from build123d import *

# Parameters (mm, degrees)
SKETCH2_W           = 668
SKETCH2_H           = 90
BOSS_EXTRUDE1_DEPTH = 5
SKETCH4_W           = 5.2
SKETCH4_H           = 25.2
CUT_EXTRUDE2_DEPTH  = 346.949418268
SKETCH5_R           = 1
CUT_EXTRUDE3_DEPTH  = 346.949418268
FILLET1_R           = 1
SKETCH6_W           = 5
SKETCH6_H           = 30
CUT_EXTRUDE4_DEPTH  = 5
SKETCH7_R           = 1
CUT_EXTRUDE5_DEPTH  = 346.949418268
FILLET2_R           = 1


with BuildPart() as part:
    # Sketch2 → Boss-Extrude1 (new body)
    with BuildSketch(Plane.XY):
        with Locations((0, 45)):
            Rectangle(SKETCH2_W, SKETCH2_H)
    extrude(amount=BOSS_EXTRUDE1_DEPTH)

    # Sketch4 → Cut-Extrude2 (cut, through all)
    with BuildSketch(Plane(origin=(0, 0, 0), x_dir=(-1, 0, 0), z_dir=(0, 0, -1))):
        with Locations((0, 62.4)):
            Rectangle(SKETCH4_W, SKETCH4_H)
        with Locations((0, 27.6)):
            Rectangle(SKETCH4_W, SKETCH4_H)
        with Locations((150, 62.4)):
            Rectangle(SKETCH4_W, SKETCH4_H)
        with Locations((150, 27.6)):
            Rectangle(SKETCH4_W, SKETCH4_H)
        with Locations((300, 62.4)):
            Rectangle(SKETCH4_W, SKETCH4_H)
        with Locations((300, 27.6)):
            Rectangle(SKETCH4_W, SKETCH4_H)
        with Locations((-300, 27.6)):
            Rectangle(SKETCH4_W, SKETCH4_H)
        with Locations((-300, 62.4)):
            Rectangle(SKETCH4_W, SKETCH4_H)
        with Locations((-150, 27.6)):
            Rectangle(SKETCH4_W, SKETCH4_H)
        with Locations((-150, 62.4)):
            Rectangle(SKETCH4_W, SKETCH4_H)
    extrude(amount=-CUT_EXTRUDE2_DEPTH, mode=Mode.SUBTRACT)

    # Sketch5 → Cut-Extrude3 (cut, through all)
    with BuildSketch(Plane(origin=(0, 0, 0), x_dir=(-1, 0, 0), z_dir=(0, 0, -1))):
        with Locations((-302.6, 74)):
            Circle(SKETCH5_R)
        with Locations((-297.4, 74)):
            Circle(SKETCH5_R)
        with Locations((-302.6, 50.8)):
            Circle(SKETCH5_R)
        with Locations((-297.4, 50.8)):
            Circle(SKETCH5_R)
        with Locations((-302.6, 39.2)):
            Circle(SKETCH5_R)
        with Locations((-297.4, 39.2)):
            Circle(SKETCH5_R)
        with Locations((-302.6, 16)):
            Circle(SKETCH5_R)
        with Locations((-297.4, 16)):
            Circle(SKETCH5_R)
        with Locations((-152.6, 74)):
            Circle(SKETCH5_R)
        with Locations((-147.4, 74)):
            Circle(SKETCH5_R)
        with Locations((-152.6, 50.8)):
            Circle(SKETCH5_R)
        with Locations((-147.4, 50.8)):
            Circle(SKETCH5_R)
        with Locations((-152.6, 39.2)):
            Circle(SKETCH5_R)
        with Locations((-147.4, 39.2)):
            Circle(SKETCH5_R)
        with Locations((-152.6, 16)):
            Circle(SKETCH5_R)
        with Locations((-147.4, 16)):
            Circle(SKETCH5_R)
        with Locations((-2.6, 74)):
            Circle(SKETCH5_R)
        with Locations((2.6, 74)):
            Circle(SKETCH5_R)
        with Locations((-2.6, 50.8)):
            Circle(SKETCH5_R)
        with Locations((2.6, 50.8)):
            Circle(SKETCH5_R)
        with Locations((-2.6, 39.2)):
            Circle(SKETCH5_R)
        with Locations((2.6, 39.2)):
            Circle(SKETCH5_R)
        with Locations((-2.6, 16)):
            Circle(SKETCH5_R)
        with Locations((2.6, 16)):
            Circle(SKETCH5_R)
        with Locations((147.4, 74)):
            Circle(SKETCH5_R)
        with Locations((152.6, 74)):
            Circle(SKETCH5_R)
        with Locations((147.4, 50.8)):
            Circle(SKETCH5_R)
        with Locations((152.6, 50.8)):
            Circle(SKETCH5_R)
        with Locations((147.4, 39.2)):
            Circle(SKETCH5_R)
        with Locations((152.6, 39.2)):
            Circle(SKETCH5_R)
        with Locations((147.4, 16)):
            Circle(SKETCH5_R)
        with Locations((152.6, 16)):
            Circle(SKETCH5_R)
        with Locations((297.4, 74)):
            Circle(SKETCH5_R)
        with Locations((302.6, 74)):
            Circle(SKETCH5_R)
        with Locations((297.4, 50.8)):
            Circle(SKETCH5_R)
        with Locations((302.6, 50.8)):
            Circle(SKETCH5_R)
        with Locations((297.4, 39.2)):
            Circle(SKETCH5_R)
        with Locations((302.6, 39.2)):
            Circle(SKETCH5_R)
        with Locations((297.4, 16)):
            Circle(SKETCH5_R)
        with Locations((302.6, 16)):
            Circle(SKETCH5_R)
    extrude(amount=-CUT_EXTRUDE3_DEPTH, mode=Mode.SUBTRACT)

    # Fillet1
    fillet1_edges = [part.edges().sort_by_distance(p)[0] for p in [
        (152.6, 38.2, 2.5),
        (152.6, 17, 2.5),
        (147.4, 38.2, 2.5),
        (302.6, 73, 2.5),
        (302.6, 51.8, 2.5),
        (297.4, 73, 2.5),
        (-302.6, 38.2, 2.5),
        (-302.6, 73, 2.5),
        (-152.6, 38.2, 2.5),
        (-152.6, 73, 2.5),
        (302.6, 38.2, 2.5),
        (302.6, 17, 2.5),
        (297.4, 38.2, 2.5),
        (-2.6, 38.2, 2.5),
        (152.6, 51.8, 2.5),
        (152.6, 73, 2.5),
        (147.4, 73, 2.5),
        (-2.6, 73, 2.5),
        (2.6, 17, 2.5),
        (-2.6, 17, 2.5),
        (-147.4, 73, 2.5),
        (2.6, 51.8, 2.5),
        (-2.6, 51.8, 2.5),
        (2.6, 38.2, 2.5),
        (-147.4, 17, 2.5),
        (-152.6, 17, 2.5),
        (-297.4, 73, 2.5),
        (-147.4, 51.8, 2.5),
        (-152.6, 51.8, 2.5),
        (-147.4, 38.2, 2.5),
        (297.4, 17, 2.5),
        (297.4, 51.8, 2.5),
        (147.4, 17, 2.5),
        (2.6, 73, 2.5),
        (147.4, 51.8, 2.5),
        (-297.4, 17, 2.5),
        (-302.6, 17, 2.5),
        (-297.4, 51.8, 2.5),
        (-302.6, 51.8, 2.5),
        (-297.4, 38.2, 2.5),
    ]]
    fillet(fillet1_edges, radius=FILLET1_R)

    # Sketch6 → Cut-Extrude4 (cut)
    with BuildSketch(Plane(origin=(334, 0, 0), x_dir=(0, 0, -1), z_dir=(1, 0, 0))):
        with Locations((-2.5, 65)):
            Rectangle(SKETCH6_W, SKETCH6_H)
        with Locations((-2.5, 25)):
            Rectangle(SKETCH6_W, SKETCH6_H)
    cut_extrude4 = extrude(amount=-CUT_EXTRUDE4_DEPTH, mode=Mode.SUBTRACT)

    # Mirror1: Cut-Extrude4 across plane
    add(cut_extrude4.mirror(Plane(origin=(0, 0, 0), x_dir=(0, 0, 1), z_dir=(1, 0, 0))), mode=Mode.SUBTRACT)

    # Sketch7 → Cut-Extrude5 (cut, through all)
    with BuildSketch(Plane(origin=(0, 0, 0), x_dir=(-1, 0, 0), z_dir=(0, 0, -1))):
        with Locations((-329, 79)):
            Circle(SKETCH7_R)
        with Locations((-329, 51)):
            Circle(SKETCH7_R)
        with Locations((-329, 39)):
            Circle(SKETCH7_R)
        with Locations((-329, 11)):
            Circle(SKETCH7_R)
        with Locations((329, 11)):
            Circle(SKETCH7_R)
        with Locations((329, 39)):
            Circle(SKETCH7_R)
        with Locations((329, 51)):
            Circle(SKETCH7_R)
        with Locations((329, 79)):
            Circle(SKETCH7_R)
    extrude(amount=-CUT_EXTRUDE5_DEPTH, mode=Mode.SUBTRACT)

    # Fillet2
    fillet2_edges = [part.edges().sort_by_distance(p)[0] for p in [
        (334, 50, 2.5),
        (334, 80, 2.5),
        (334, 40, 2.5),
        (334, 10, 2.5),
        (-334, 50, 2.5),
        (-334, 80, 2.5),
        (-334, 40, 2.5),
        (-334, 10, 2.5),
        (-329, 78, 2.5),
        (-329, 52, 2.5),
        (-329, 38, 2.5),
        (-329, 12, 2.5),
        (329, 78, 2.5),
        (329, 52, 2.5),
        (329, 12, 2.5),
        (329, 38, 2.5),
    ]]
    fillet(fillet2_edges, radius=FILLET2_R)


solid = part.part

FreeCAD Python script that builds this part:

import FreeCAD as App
import Part
import Sketcher
from FreeCAD import Vector


def edges_at(feature, points):
    """Names of the edges that pass closest to the given points."""
    edges = feature.Shape.Edges
    near = lambda p: min(range(len(edges)), key=lambda i: edges[i].distToShape(Part.Vertex(*p))[0])
    return sorted({f"Edge{near(p) + 1}" for p in points})

doc = App.newDocument("Part")
body = doc.addObject("PartDesign::Body", "Body")

sketch1 = body.newObject("Sketcher::SketchObject", "Sketch")
sketch1.AttachmentSupport = (doc.getObject("XY_Plane"), [""])
sketch1.MapMode = "FlatFace"
sketch1.addGeometry([
    Part.LineSegment(Vector(-334, 90, 0), Vector(-334, 0, 0)),
    Part.LineSegment(Vector(-334, 0, 0), Vector(334, 0, 0)),
    Part.LineSegment(Vector(334, 0, 0), Vector(334, 90, 0)),
    Part.LineSegment(Vector(334, 90, 0), Vector(-334, 90, 0)),
], False)
sketch1.addConstraint([
    Sketcher.Constraint("Coincident", 0, 2, 1, 1),
    Sketcher.Constraint("Coincident", 1, 2, 2, 1),
    Sketcher.Constraint("Coincident", 2, 2, 3, 1),
    Sketcher.Constraint("Coincident", 3, 2, 0, 1),
    Sketcher.Constraint("Vertical", 0),
    Sketcher.Constraint("Horizontal", 1),
    Sketcher.Constraint("Vertical", 2),
    Sketcher.Constraint("Horizontal", 3),
    Sketcher.Constraint("Symmetric", 0, 2, 1, 2, -1, 1),
    Sketcher.Constraint("DistanceX", 1, 1, 1, 2, 668.0),
    Sketcher.Constraint("DistanceY", 0, 2, 0, 1, 90.0),
])
pad1 = body.newObject("PartDesign::Pad", "Pad")
pad1.Profile = sketch1
pad1.Length = 5

sketch2 = body.newObject("Sketcher::SketchObject", "Sketch001")
sketch2.AttachmentSupport = (doc.getObject("XY_Plane"), [""])
sketch2.MapMode = "FlatFace"
sketch2.addGeometry([
    Part.LineSegment(Vector(2.6, 75, 0), Vector(2.6, 49.8, 0)),
    Part.LineSegment(Vector(2.6, 49.8, 0), Vector(-2.6, 49.8, 0)),
    Part.LineSegment(Vector(-2.6, 49.8, 0), Vector(-2.6, 75, 0)),
    Part.LineSegment(Vector(-2.6, 75, 0), Vector(2.6, 75, 0)),
    Part.LineSegment(Vector(2.6, 40.2, 0), Vector(2.6, 15, 0)),
    Part.LineSegment(Vector(2.6, 15, 0), Vector(-2.6, 15, 0)),
    Part.LineSegment(Vector(-2.6, 15, 0), Vector(-2.6, 40.2, 0)),
    Part.LineSegment(Vector(-2.6, 40.2, 0), Vector(2.6, 40.2, 0)),
    Part.LineSegment(Vector(-147.4, 75, 0), Vector(-147.4, 49.8, 0)),
    Part.LineSegment(Vector(-147.4, 49.8, 0), Vector(-152.6, 49.8, 0)),
    Part.LineSegment(Vector(-152.6, 49.8, 0), Vector(-152.6, 75, 0)),
    Part.LineSegment(Vector(-152.6, 75, 0), Vector(-147.4, 75, 0)),
    Part.LineSegment(Vector(-147.4, 40.2, 0), Vector(-147.4, 15, 0)),
    Part.LineSegment(Vector(-147.4, 15, 0), Vector(-152.6, 15, 0)),
    Part.LineSegment(Vector(-152.6, 15, 0), Vector(-152.6, 40.2, 0)),
    Part.LineSegment(Vector(-152.6, 40.2, 0), Vector(-147.4, 40.2, 0)),
    Part.LineSegment(Vector(-297.4, 75, 0), Vector(-297.4, 49.8, 0)),
    Part.LineSegment(Vector(-297.4, 49.8, 0), Vector(-302.6, 49.8, 0)),
    Part.LineSegment(Vector(-302.6, 49.8, 0), Vector(-302.6, 75, 0)),
    Part.LineSegment(Vector(-302.6, 75, 0), Vector(-297.4, 75, 0)),
    Part.LineSegment(Vector(-297.4, 40.2, 0), Vector(-297.4, 15, 0)),
    Part.LineSegment(Vector(-297.4, 15, 0), Vector(-302.6, 15, 0)),
    Part.LineSegment(Vector(-302.6, 15, 0), Vector(-302.6, 40.2, 0)),
    Part.LineSegment(Vector(-302.6, 40.2, 0), Vector(-297.4, 40.2, 0)),
    Part.LineSegment(Vector(302.6, 40.2, 0), Vector(302.6, 15, 0)),
    Part.LineSegment(Vector(302.6, 15, 0), Vector(297.4, 15, 0)),
    Part.LineSegment(Vector(297.4, 15, 0), Vector(297.4, 40.2, 0)),
    Part.LineSegment(Vector(297.4, 40.2, 0), Vector(302.6, 40.2, 0)),
    Part.LineSegment(Vector(302.6, 75, 0), Vector(302.6, 49.8, 0)),
    Part.LineSegment(Vector(302.6, 49.8, 0), Vector(297.4, 49.8, 0)),
    Part.LineSegment(Vector(297.4, 49.8, 0), Vector(297.4, 75, 0)),
    Part.LineSegment(Vector(297.4, 75, 0), Vector(302.6, 75, 0)),
    Part.LineSegment(Vector(152.6, 40.2, 0), Vector(152.6, 15, 0)),
    Part.LineSegment(Vector(152.6, 15, 0), Vector(147.4, 15, 0)),
    Part.LineSegment(Vector(147.4, 15, 0), Vector(147.4, 40.2, 0)),
    Part.LineSegment(Vector(147.4, 40.2, 0), Vector(152.6, 40.2, 0)),
    Part.LineSegment(Vector(152.6, 75, 0), Vector(152.6, 49.8, 0)),
    Part.LineSegment(Vector(152.6, 49.8, 0), Vector(147.4, 49.8, 0)),
    Part.LineSegment(Vector(147.4, 49.8, 0), Vector(147.4, 75, 0)),
    Part.LineSegment(Vector(147.4, 75, 0), Vector(152.6, 75, 0)),
], False)
sketch2.addConstraint([
    Sketcher.Constraint("Coincident", 0, 2, 1, 1),
    Sketcher.Constraint("Coincident", 1, 2, 2, 1),
    Sketcher.Constraint("Coincident", 2, 2, 3, 1),
    Sketcher.Constraint("Coincident", 3, 2, 0, 1),
    Sketcher.Constraint("Coincident", 4, 2, 5, 1),
    Sketcher.Constraint("Coincident", 5, 2, 6, 1),
    Sketcher.Constraint("Coincident", 6, 2, 7, 1),
    Sketcher.Constraint("Coincident", 7, 2, 4, 1),
    Sketcher.Constraint("Coincident", 8, 2, 9, 1),
    Sketcher.Constraint("Coincident", 9, 2, 10, 1),
    Sketcher.Constraint("Coincident", 10, 2, 11, 1),
    Sketcher.Constraint("Coincident", 11, 2, 8, 1),
    Sketcher.Constraint("Coincident", 12, 2, 13, 1),
    Sketcher.Constraint("Coincident", 13, 2, 14, 1),
    Sketcher.Constraint("Coincident", 14, 2, 15, 1),
    Sketcher.Constraint("Coincident", 15, 2, 12, 1),
    Sketcher.Constraint("Coincident", 16, 2, 17, 1),
    Sketcher.Constraint("Coincident", 17, 2, 18, 1),
    Sketcher.Constraint("Coincident", 18, 2, 19, 1),
    Sketcher.Constraint("Coincident", 19, 2, 16, 1),
    Sketcher.Constraint("Coincident", 20, 2, 21, 1),
    Sketcher.Constraint("Coincident", 21, 2, 22, 1),
    Sketcher.Constraint("Coincident", 22, 2, 23, 1),
    Sketcher.Constraint("Coincident", 23, 2, 20, 1),
    Sketcher.Constraint("Coincident", 24, 2, 25, 1),
    Sketcher.Constraint("Coincident", 25, 2, 26, 1),
    Sketcher.Constraint("Coincident", 26, 2, 27, 1),
    Sketcher.Constraint("Coincident", 27, 2, 24, 1),
    Sketcher.Constraint("Coincident", 28, 2, 29, 1),
    Sketcher.Constraint("Coincident", 29, 2, 30, 1),
    Sketcher.Constraint("Coincident", 30, 2, 31, 1),
    Sketcher.Constraint("Coincident", 31, 2, 28, 1),
    Sketcher.Constraint("Coincident", 32, 2, 33, 1),
    Sketcher.Constraint("Coincident", 33, 2, 34, 1),
    Sketcher.Constraint("Coincident", 34, 2, 35, 1),
    Sketcher.Constraint("Coincident", 35, 2, 32, 1),
    Sketcher.Constraint("Coincident", 36, 2, 37, 1),
    Sketcher.Constraint("Coincident", 37, 2, 38, 1),
    Sketcher.Constraint("Coincident", 38, 2, 39, 1),
    Sketcher.Constraint("Coincident", 39, 2, 36, 1),
    Sketcher.Constraint("Vertical", 0),
    Sketcher.Constraint("Horizontal", 1),
    Sketcher.Constraint("Vertical", 2),
    Sketcher.Constraint("Horizontal", 3),
    Sketcher.Constraint("Vertical", 4),
    Sketcher.Constraint("Horizontal", 5),
    Sketcher.Constraint("Vertical", 6),
    Sketcher.Constraint("Horizontal", 7),
    Sketcher.Constraint("Vertical", 8),
    Sketcher.Constraint("Horizontal", 9),
    Sketcher.Constraint("Vertical", 10),
    Sketcher.Constraint("Horizontal", 11),
    Sketcher.Constraint("Vertical", 12),
    Sketcher.Constraint("Horizontal", 13),
    Sketcher.Constraint("Vertical", 14),
    Sketcher.Constraint("Horizontal", 15),
    Sketcher.Constraint("Vertical", 16),
    Sketcher.Constraint("Horizontal", 17),
    Sketcher.Constraint("Vertical", 18),
    Sketcher.Constraint("Horizontal", 19),
    Sketcher.Constraint("Vertical", 20),
    Sketcher.Constraint("Horizontal", 21),
    Sketcher.Constraint("Vertical", 22),
    Sketcher.Constraint("Horizontal", 23),
    Sketcher.Constraint("Vertical", 24),
    Sketcher.Constraint("Horizontal", 25),
    Sketcher.Constraint("Vertical", 26),
    Sketcher.Constraint("Horizontal", 27),
    Sketcher.Constraint("Vertical", 28),
    Sketcher.Constraint("Horizontal", 29),
    Sketcher.Constraint("Vertical", 30),
    Sketcher.Constraint("Horizontal", 31),
    Sketcher.Constraint("Vertical", 32),
    Sketcher.Constraint("Horizontal", 33),
    Sketcher.Constraint("Vertical", 34),
    Sketcher.Constraint("Horizontal", 35),
    Sketcher.Constraint("Vertical", 36),
    Sketcher.Constraint("Horizontal", 37),
    Sketcher.Constraint("Vertical", 38),
    Sketcher.Constraint("Horizontal", 39),
    Sketcher.Constraint("Symmetric", 21, 2, 24, 2, -2),
    Sketcher.Constraint("Symmetric", 23, 2, 26, 2, -2),
    Sketcher.Constraint("Symmetric", 17, 2, 28, 2, -2),
    Sketcher.Constraint("Symmetric", 19, 2, 30, 2, -2),
    Sketcher.Constraint("Symmetric", 13, 2, 32, 2, -2),
    Sketcher.Constraint("Symmetric", 15, 2, 34, 2, -2),
    Sketcher.Constraint("Symmetric", 9, 2, 36, 2, -2),
    Sketcher.Constraint("Symmetric", 11, 2, 38, 2, -2),
    Sketcher.Constraint("Horizontal", 1, 2, 8, 2),
    Sketcher.Constraint("Horizontal", 3, 2, 10, 2),
    Sketcher.Constraint("Horizontal", 5, 2, 12, 2),
    Sketcher.Constraint("Horizontal", 7, 2, 14, 2),
    Sketcher.Constraint("Horizontal", 9, 2, 16, 2),
    Sketcher.Constraint("Horizontal", 11, 2, 18, 2),
    Sketcher.Constraint("Horizontal", 13, 2, 20, 2),
    Sketcher.Constraint("Horizontal", 15, 2, 22, 2),
    Sketcher.Constraint("Vertical", 3, 2, 4, 2),
    Sketcher.Constraint("Vertical", 2, 2, 5, 2),
    Sketcher.Constraint("Vertical", 11, 2, 12, 2),
    Sketcher.Constraint("Vertical", 10, 2, 13, 2),
    Sketcher.Constraint("Vertical", 19, 2, 20, 2),
    Sketcher.Constraint("Vertical", 18, 2, 21, 2),
    Sketcher.Constraint("Equal", 7, 9),
    Sketcher.Constraint("Equal", 15, 17),
    Sketcher.Constraint("Equal", 2, 4),
    Sketcher.Constraint("DistanceX", 1, 2, 1, 1, 5.2),
    Sketcher.Constraint("DistanceY", 0, 2, 0, 1, 25.2),
    Sketcher.Constraint("DistanceY", -1, 1, 2, 2, 75.0),
    Sketcher.Constraint("DistanceY", -1, 1, 4, 2, 15.0),
    Sketcher.Constraint("DistanceX", 8, 2, 0, 2, 150.0),
    Sketcher.Constraint("DistanceX", 16, 2, 8, 2, 150.0),
    Sketcher.Constraint("DistanceX", 4, 2, 24, 2, 300.0),
])
pocket1 = body.newObject("PartDesign::Pocket", "Pocket")
pocket1.Profile = sketch2
pocket1.Type = "ThroughAll"
pocket1.Reversed = True

sketch3 = body.newObject("Sketcher::SketchObject", "Sketch002")
sketch3.AttachmentSupport = (doc.getObject("XY_Plane"), [""])
sketch3.MapMode = "FlatFace"
sketch3.addGeometry([
    Part.Circle(Vector(302.6, 74, 0), Vector(0, 0, 1), 1),
    Part.Circle(Vector(297.4, 74, 0), Vector(0, 0, 1), 1),
    Part.Circle(Vector(302.6, 50.8, 0), Vector(0, 0, 1), 1),
    Part.Circle(Vector(297.4, 50.8, 0), Vector(0, 0, 1), 1),
    Part.Circle(Vector(302.6, 39.2, 0), Vector(0, 0, 1), 1),
    Part.Circle(Vector(297.4, 39.2, 0), Vector(0, 0, 1), 1),
    Part.Circle(Vector(302.6, 16, 0), Vector(0, 0, 1), 1),
    Part.Circle(Vector(297.4, 16, 0), Vector(0, 0, 1), 1),
    Part.Circle(Vector(152.6, 74, 0), Vector(0, 0, 1), 1),
    Part.Circle(Vector(147.4, 74, 0), Vector(0, 0, 1), 1),
    Part.Circle(Vector(152.6, 50.8, 0), Vector(0, 0, 1), 1),
    Part.Circle(Vector(147.4, 50.8, 0), Vector(0, 0, 1), 1),
    Part.Circle(Vector(152.6, 39.2, 0), Vector(0, 0, 1), 1),
    Part.Circle(Vector(147.4, 39.2, 0), Vector(0, 0, 1), 1),
    Part.Circle(Vector(152.6, 16, 0), Vector(0, 0, 1), 1),
    Part.Circle(Vector(147.4, 16, 0), Vector(0, 0, 1), 1),
    Part.Circle(Vector(2.6, 74, 0), Vector(0, 0, 1), 1),
    Part.Circle(Vector(-2.6, 74, 0), Vector(0, 0, 1), 1),
    Part.Circle(Vector(2.6, 50.8, 0), Vector(0, 0, 1), 1),
    Part.Circle(Vector(-2.6, 50.8, 0), Vector(0, 0, 1), 1),
    Part.Circle(Vector(2.6, 39.2, 0), Vector(0, 0, 1), 1),
    Part.Circle(Vector(-2.6, 39.2, 0), Vector(0, 0, 1), 1),
    Part.Circle(Vector(2.6, 16, 0), Vector(0, 0, 1), 1),
    Part.Circle(Vector(-2.6, 16, 0), Vector(0, 0, 1), 1),
    Part.Circle(Vector(-147.4, 74, 0), Vector(0, 0, 1), 1),
    Part.Circle(Vector(-152.6, 74, 0), Vector(0, 0, 1), 1),
    Part.Circle(Vector(-147.4, 50.8, 0), Vector(0, 0, 1), 1),
    Part.Circle(Vector(-152.6, 50.8, 0), Vector(0, 0, 1), 1),
    Part.Circle(Vector(-147.4, 39.2, 0), Vector(0, 0, 1), 1),
    Part.Circle(Vector(-152.6, 39.2, 0), Vector(0, 0, 1), 1),
    Part.Circle(Vector(-147.4, 16, 0), Vector(0, 0, 1), 1),
    Part.Circle(Vector(-152.6, 16, 0), Vector(0, 0, 1), 1),
    Part.Circle(Vector(-297.4, 74, 0), Vector(0, 0, 1), 1),
    Part.Circle(Vector(-302.6, 74, 0), Vector(0, 0, 1), 1),
    Part.Circle(Vector(-297.4, 50.8, 0), Vector(0, 0, 1), 1),
    Part.Circle(Vector(-302.6, 50.8, 0), Vector(0, 0, 1), 1),
    Part.Circle(Vector(-297.4, 39.2, 0), Vector(0, 0, 1), 1),
    Part.Circle(Vector(-302.6, 39.2, 0), Vector(0, 0, 1), 1),
    Part.Circle(Vector(-297.4, 16, 0), Vector(0, 0, 1), 1),
    Part.Circle(Vector(-302.6, 16, 0), Vector(0, 0, 1), 1),
], False)
sketch3.addConstraint([
    Sketcher.Constraint("Equal", 0, 1),
    Sketcher.Constraint("Equal", 1, 2),
    Sketcher.Constraint("Equal", 2, 3),
    Sketcher.Constraint("Equal", 3, 4),
    Sketcher.Constraint("Equal", 4, 5),
    Sketcher.Constraint("Equal", 5, 6),
    Sketcher.Constraint("Equal", 6, 7),
    Sketcher.Constraint("Equal", 7, 8),
    Sketcher.Constraint("Equal", 8, 9),
    Sketcher.Constraint("Equal", 9, 10),
    Sketcher.Constraint("Equal", 10, 11),
    Sketcher.Constraint("Equal", 11, 12),
    Sketcher.Constraint("Equal", 12, 13),
    Sketcher.Constraint("Equal", 13, 14),
    Sketcher.Constraint("Equal", 14, 15),
    Sketcher.Constraint("Equal", 15, 16),
    Sketcher.Constraint("Equal", 16, 17),
    Sketcher.Constraint("Equal", 17, 18),
    Sketcher.Constraint("Equal", 18, 19),
    Sketcher.Constraint("Equal", 19, 20),
    Sketcher.Constraint("Equal", 20, 21),
    Sketcher.Constraint("Equal", 21, 22),
    Sketcher.Constraint("Equal", 22, 23),
    Sketcher.Constraint("Equal", 23, 24),
    Sketcher.Constraint("Equal", 24, 25),
    Sketcher.Constraint("Equal", 25, 26),
    Sketcher.Constraint("Equal", 26, 27),
    Sketcher.Constraint("Equal", 27, 28),
    Sketcher.Constraint("Equal", 28, 29),
    Sketcher.Constraint("Equal", 29, 30),
    Sketcher.Constraint("Equal", 30, 31),
    Sketcher.Constraint("Equal", 31, 32),
    Sketcher.Constraint("Equal", 32, 33),
    Sketcher.Constraint("Equal", 33, 34),
    Sketcher.Constraint("Equal", 34, 35),
    Sketcher.Constraint("Equal", 35, 36),
    Sketcher.Constraint("Equal", 36, 37),
    Sketcher.Constraint("Equal", 37, 38),
    Sketcher.Constraint("Equal", 38, 39),
    Sketcher.Constraint("Symmetric", 16, 3, 17, 3, -2),
    Sketcher.Constraint("Symmetric", 18, 3, 19, 3, -2),
    Sketcher.Constraint("Symmetric", 20, 3, 21, 3, -2),
    Sketcher.Constraint("Symmetric", 22, 3, 23, 3, -2),
    Sketcher.Constraint("Symmetric", 9, 3, 24, 3, -2),
    Sketcher.Constraint("Symmetric", 8, 3, 25, 3, -2),
    Sketcher.Constraint("Symmetric", 11, 3, 26, 3, -2),
    Sketcher.Constraint("Symmetric", 10, 3, 27, 3, -2),
    Sketcher.Constraint("Symmetric", 13, 3, 28, 3, -2),
    Sketcher.Constraint("Symmetric", 12, 3, 29, 3, -2),
    Sketcher.Constraint("Symmetric", 15, 3, 30, 3, -2),
    Sketcher.Constraint("Symmetric", 14, 3, 31, 3, -2),
    Sketcher.Constraint("Symmetric", 1, 3, 32, 3, -2),
    Sketcher.Constraint("Symmetric", 0, 3, 33, 3, -2),
    Sketcher.Constraint("Symmetric", 3, 3, 34, 3, -2),
    Sketcher.Constraint("Symmetric", 2, 3, 35, 3, -2),
    Sketcher.Constraint("Symmetric", 5, 3, 36, 3, -2),
    Sketcher.Constraint("Symmetric", 4, 3, 37, 3, -2),
    Sketcher.Constraint("Symmetric", 7, 3, 38, 3, -2),
    Sketcher.Constraint("Symmetric", 6, 3, 39, 3, -2),
    Sketcher.Constraint("Horizontal", 0, 3, 1, 3),
    Sketcher.Constraint("Horizontal", 2, 3, 3, 3),
    Sketcher.Constraint("Horizontal", 4, 3, 5, 3),
    Sketcher.Constraint("Horizontal", 6, 3, 7, 3),
    Sketcher.Constraint("Horizontal", 1, 3, 8, 3),
    Sketcher.Constraint("Horizontal", 8, 3, 9, 3),
    Sketcher.Constraint("Horizontal", 3, 3, 10, 3),
    Sketcher.Constraint("Horizontal", 10, 3, 11, 3),
    Sketcher.Constraint("Horizontal", 5, 3, 12, 3),
    Sketcher.Constraint("Horizontal", 12, 3, 13, 3),
    Sketcher.Constraint("Horizontal", 7, 3, 14, 3),
    Sketcher.Constraint("Horizontal", 14, 3, 15, 3),
    Sketcher.Constraint("Horizontal", 9, 3, 16, 3),
    Sketcher.Constraint("Horizontal", 11, 3, 18, 3),
    Sketcher.Constraint("Horizontal", 13, 3, 20, 3),
    Sketcher.Constraint("Horizontal", 15, 3, 22, 3),
    Sketcher.Constraint("Vertical", 0, 3, 2, 3),
    Sketcher.Constraint("Vertical", 1, 3, 3, 3),
    Sketcher.Constraint("Vertical", 2, 3, 4, 3),
    Sketcher.Constraint("Vertical", 3, 3, 5, 3),
    Sketcher.Constraint("Vertical", 4, 3, 6, 3),
    Sketcher.Constraint("Vertical", 5, 3, 7, 3),
    Sketcher.Constraint("Vertical", 8, 3, 10, 3),
    Sketcher.Constraint("Vertical", 9, 3, 11, 3),
    Sketcher.Constraint("Vertical", 10, 3, 12, 3),
    Sketcher.Constraint("Vertical", 11, 3, 13, 3),
    Sketcher.Constraint("Vertical", 12, 3, 14, 3),
    Sketcher.Constraint("Vertical", 13, 3, 15, 3),
    Sketcher.Constraint("Vertical", 16, 3, 18, 3),
    Sketcher.Constraint("Vertical", 18, 3, 20, 3),
    Sketcher.Constraint("Vertical", 20, 3, 22, 3),
    Sketcher.Constraint("Diameter", 0, 2.0),
    Sketcher.Constraint("DistanceY", -1, 1, 0, 3, 74.0),
    Sketcher.Constraint("DistanceY", -1, 1, 6, 3, 16.0),
    Sketcher.Constraint("DistanceX", 8, 3, 0, 3, 150.0),
    Sketcher.Constraint("DistanceX", 9, 3, 1, 3, 150.0),
    Sketcher.Constraint("DistanceX", 16, 3, 8, 3, 150.0),
    Sketcher.Constraint("DistanceX", 17, 3, 9, 3, 150.0),
    Sketcher.Constraint("DistanceX", -1, 1, 0, 3, 302.6),
    Sketcher.Constraint("DistanceY", -1, 1, 2, 3, 50.8),
    Sketcher.Constraint("DistanceY", -1, 1, 4, 3, 39.2),
])
pocket2 = body.newObject("PartDesign::Pocket", "Pocket001")
pocket2.Profile = sketch3
pocket2.Type = "ThroughAll"
pocket2.Reversed = True
doc.recompute()

fillet = body.newObject("PartDesign::Fillet", "Fillet")
fillet.Base = (pocket2, edges_at(pocket2, [
    (152.6, 38.2, 2.5),
    (152.6, 17, 2.5),
    (147.4, 38.2, 2.5),
    (302.6, 73, 2.5),
    (302.6, 51.8, 2.5),
    (297.4, 73, 2.5),
    (-302.6, 38.2, 2.5),
    (-302.6, 73, 2.5),
    (-152.6, 38.2, 2.5),
    (-152.6, 73, 2.5),
    (302.6, 38.2, 2.5),
    (302.6, 17, 2.5),
    (297.4, 38.2, 2.5),
    (-2.6, 38.2, 2.5),
    (152.6, 51.8, 2.5),
    (152.6, 73, 2.5),
    (147.4, 73, 2.5),
    (-2.6, 73, 2.5),
    (2.6, 17, 2.5),
    (-2.6, 17, 2.5),
    (-147.4, 73, 2.5),
    (2.6, 51.8, 2.5),
    (-2.6, 51.8, 2.5),
    (2.6, 38.2, 2.5),
    (-147.4, 17, 2.5),
    (-152.6, 17, 2.5),
    (-297.4, 73, 2.5),
    (-147.4, 51.8, 2.5),
    (-152.6, 51.8, 2.5),
    (-147.4, 38.2, 2.5),
    (297.4, 17, 2.5),
    (297.4, 51.8, 2.5),
    (147.4, 17, 2.5),
    (2.6, 73, 2.5),
    (147.4, 51.8, 2.5),
    (-297.4, 17, 2.5),
    (-302.6, 17, 2.5),
    (-297.4, 51.8, 2.5),
    (-302.6, 51.8, 2.5),
    (-297.4, 38.2, 2.5),
]))
fillet.Radius = 1

sketch4 = body.newObject("Sketcher::SketchObject", "Sketch003")
sketch4.AttachmentSupport = (doc.getObject("YZ_Plane"), [""])
sketch4.MapMode = "FlatFace"
sketch4.AttachmentOffset = App.Placement(Vector(0, 0, 334), App.Rotation())
sketch4.addGeometry([
    Part.LineSegment(Vector(80, 5, 0), Vector(50, 5, 0)),
    Part.LineSegment(Vector(50, 5, 0), Vector(50, 0, 0)),
    Part.LineSegment(Vector(50, 0, 0), Vector(80, 0, 0)),
    Part.LineSegment(Vector(80, 0, 0), Vector(80, 5, 0)),
    Part.LineSegment(Vector(40, 5, 0), Vector(10, 5, 0)),
    Part.LineSegment(Vector(10, 5, 0), Vector(10, 0, 0)),
    Part.LineSegment(Vector(10, 0, 0), Vector(40, 0, 0)),
    Part.LineSegment(Vector(40, 0, 0), Vector(40, 5, 0)),
], False)
sketch4.addConstraint([
    Sketcher.Constraint("Coincident", 0, 2, 1, 1),
    Sketcher.Constraint("Coincident", 1, 2, 2, 1),
    Sketcher.Constraint("Coincident", 2, 2, 3, 1),
    Sketcher.Constraint("Coincident", 3, 2, 0, 1),
    Sketcher.Constraint("Coincident", 4, 2, 5, 1),
    Sketcher.Constraint("Coincident", 5, 2, 6, 1),
    Sketcher.Constraint("Coincident", 6, 2, 7, 1),
    Sketcher.Constraint("Coincident", 7, 2, 4, 1),
    Sketcher.Constraint("Horizontal", 0),
    Sketcher.Constraint("Vertical", 1),
    Sketcher.Constraint("Horizontal", 2),
    Sketcher.Constraint("Vertical", 3),
    Sketcher.Constraint("Horizontal", 4),
    Sketcher.Constraint("Vertical", 5),
    Sketcher.Constraint("Horizontal", 6),
    Sketcher.Constraint("Vertical", 7),
    Sketcher.Constraint("PointOnObject", 1, 2, -1),
    Sketcher.Constraint("PointOnObject", 5, 2, -1),
    Sketcher.Constraint("Horizontal", 3, 2, 4, 2),
    Sketcher.Constraint("Equal", 2, 4),
    Sketcher.Constraint("DistanceX", 0, 2, 0, 1, 30.0),
    Sketcher.Constraint("DistanceY", 1, 2, 1, 1, 5.0),
    Sketcher.Constraint("DistanceX", -1, 1, 0, 2, 50.0),
    Sketcher.Constraint("DistanceX", -1, 1, 4, 2, 10.0),
])
pocket3 = body.newObject("PartDesign::Pocket", "Pocket002")
pocket3.Profile = sketch4
pocket3.Length = 5
doc.recompute()

mirrored = body.newObject("PartDesign::Mirrored", "Mirrored")
mirrored.Originals = [pocket3]
mirrored.MirrorPlane = (doc.getObject("YZ_Plane"), [""])
body.Tip = mirrored

sketch5 = body.newObject("Sketcher::SketchObject", "Sketch004")
sketch5.AttachmentSupport = (doc.getObject("XY_Plane"), [""])
sketch5.MapMode = "FlatFace"
sketch5.addGeometry([
    Part.Circle(Vector(329, 79, 0), Vector(0, 0, 1), 1),
    Part.Circle(Vector(329, 51, 0), Vector(0, 0, 1), 1),
    Part.Circle(Vector(329, 39, 0), Vector(0, 0, 1), 1),
    Part.Circle(Vector(329, 11, 0), Vector(0, 0, 1), 1),
    Part.Circle(Vector(-329, 11, 0), Vector(0, 0, 1), 1),
    Part.Circle(Vector(-329, 39, 0), Vector(0, 0, 1), 1),
    Part.Circle(Vector(-329, 51, 0), Vector(0, 0, 1), 1),
    Part.Circle(Vector(-329, 79, 0), Vector(0, 0, 1), 1),
], False)
sketch5.addConstraint([
    Sketcher.Constraint("Equal", 0, 1),
    Sketcher.Constraint("Equal", 1, 2),
    Sketcher.Constraint("Equal", 2, 3),
    Sketcher.Constraint("Equal", 3, 4),
    Sketcher.Constraint("Equal", 4, 5),
    Sketcher.Constraint("Equal", 5, 6),
    Sketcher.Constraint("Equal", 6, 7),
    Sketcher.Constraint("Symmetric", 3, 3, 4, 3, -2),
    Sketcher.Constraint("Symmetric", 2, 3, 5, 3, -2),
    Sketcher.Constraint("Symmetric", 1, 3, 6, 3, -2),
    Sketcher.Constraint("Symmetric", 0, 3, 7, 3, -2),
    Sketcher.Constraint("Vertical", 0, 3, 1, 3),
    Sketcher.Constraint("Vertical", 1, 3, 2, 3),
    Sketcher.Constraint("Vertical", 2, 3, 3, 3),
    Sketcher.Constraint("Diameter", 0, 2.0),
    Sketcher.Constraint("DistanceX", -1, 1, 0, 3, 329.0),
    Sketcher.Constraint("DistanceY", -1, 1, 0, 3, 79.0),
    Sketcher.Constraint("DistanceY", -1, 1, 1, 3, 51.0),
    Sketcher.Constraint("DistanceY", -1, 1, 2, 3, 39.0),
    Sketcher.Constraint("DistanceY", -1, 1, 3, 3, 11.0),
])
pocket4 = body.newObject("PartDesign::Pocket", "Pocket003")
pocket4.Profile = sketch5
pocket4.Type = "ThroughAll"
pocket4.Reversed = True
doc.recompute()

fillet2 = body.newObject("PartDesign::Fillet", "Fillet001")
fillet2.Base = (pocket4, edges_at(pocket4, [
    (334, 50, 2.5),
    (334, 80, 2.5),
    (334, 40, 2.5),
    (334, 10, 2.5),
    (-334, 50, 2.5),
    (-334, 80, 2.5),
    (-334, 40, 2.5),
    (-334, 10, 2.5),
    (-329, 78, 2.5),
    (-329, 52, 2.5),
    (-329, 38, 2.5),
    (-329, 12, 2.5),
    (329, 78, 2.5),
    (329, 52, 2.5),
    (329, 12, 2.5),
    (329, 38, 2.5),
]))
fillet2.Radius = 1

doc.recompute()
